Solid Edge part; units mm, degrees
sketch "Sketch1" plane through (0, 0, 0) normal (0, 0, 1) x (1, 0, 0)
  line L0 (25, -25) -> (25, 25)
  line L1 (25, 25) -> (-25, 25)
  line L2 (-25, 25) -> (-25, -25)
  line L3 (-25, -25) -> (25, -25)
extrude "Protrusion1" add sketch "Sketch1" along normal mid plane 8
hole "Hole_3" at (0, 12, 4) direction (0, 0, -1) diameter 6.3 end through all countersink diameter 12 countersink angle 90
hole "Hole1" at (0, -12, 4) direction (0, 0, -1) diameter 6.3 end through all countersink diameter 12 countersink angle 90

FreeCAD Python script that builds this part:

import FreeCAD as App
import Part
import Sketcher
from FreeCAD import Vector


def add_polygon(sketch, points):
    """Adds a closed chain of lines whose ends are joined by coincident constraints."""
    first, n = sketch.GeometryCount, len(points)
    for a, b in zip(points, points[1:] + points[:1]):
        sketch.addGeometry(Part.LineSegment(App.Vector(*a, 0), App.Vector(*b, 0)), False)
    for i in range(n):
        sketch.addConstraint(Sketcher.Constraint("Coincident", first + i, 2, first + (i + 1) % n, 1))

doc = App.newDocument("Part")
params = doc.addObject("Spreadsheet::Sheet", "Params")
for row, (alias, value) in enumerate([
    ("sketch1_width", "50 mm"),
    ("pad1_length", "8 mm"),
    ("sketch2_diameter", "6.3 mm"),
    ("hole_diameter", "6.3 mm"),
    ("hole_csink_diameter", "12 mm"),
    ("sketch3_diameter", "6.3 mm"),
    ("hole2_diameter", "6.3 mm"),
    ("hole2_csink_diameter", "12 mm"),
], start=1):
    params.set(f"A{row}", alias)
    params.set(f"B{row}", "=" + value)
    params.setAlias(f"B{row}", alias)

body = doc.addObject("PartDesign::Body", "Body")

# Sketch on XY plane
sketch1 = body.newObject("Sketcher::SketchObject", "Sketch")
sketch1.AttachmentSupport = (doc.getObject("XY_Plane"), [""])
sketch1.MapMode = "FlatFace"
add_polygon(sketch1, [(-25, -25), (25, -25), (25, 25), (-25, 25)])  # lines 0-3
sketch1.addConstraint(Sketcher.Constraint("Horizontal", 0))
sketch1.addConstraint(Sketcher.Constraint("Vertical", 1))
sketch1.addConstraint(Sketcher.Constraint("Horizontal", 2))
sketch1.addConstraint(Sketcher.Constraint("Vertical", 3))
sketch1.addConstraint(Sketcher.Constraint("Symmetric", 0, 2, 2, 2, -1, 1))
sketch1.addConstraint(Sketcher.Constraint("Equal", 2, 1))
sketch1.addConstraint(Sketcher.Constraint("DistanceX", 0, 1, 0, 2, 50.0))
sketch1.setExpression("Constraints[10]", "Params.sketch1_width")
pad1 = body.newObject("PartDesign::Pad", "Pad")
pad1.Profile = sketch1
pad1.setExpression("Length", "Params.pad1_length")
pad1.Midplane = True

# Sketch on XY plane
sketch2 = body.newObject("Sketcher::SketchObject", "Sketch001")
sketch2.AttachmentSupport = (doc.getObject("XY_Plane"), [""])
sketch2.MapMode = "FlatFace"
sketch2.AttachmentOffset = App.Placement(Vector(0, 0, 4), App.Rotation())
sketch2.addGeometry(Part.Circle(Vector(0, 12, 0), Vector(0, 0, 1), 3.1), False)
sketch2.addConstraint(Sketcher.Constraint("PointOnObject", 0, 3, -2))
sketch2.addConstraint(Sketcher.Constraint("Diameter", 0, 6.3))
sketch2.addConstraint(Sketcher.Constraint("DistanceY", -1, 1, 0, 3, 12.0))
sketch2.setExpression("Constraints[1]", "Params.sketch2_diameter")
doc.recompute()
hole = body.newObject("PartDesign::Hole", "Hole")
hole.Profile = sketch2
hole.ThreadType = "None"
hole.setExpression("Diameter", "Params.hole_diameter")
hole.DepthType = "ThroughAll"
hole.HoleCutType = "Countersink"
hole.setExpression("HoleCutDiameter", "Params.hole_csink_diameter")
hole.HoleCutCountersinkAngle = 90

# Sketch on XY plane
sketch3 = body.newObject("Sketcher::SketchObject", "Sketch002")
sketch3.AttachmentSupport = (doc.getObject("XY_Plane"), [""])
sketch3.MapMode = "FlatFace"
sketch3.AttachmentOffset = App.Placement(Vector(0, 0, 4), App.Rotation())
sketch3.addGeometry(Part.Circle(Vector(0, -12, 0), Vector(0, 0, 1), 3.1), False)
sketch3.addConstraint(Sketcher.Constraint("PointOnObject", 0, 3, -2))
sketch3.addConstraint(Sketcher.Constraint("Diameter", 0, 6.3))
sketch3.addConstraint(Sketcher.Constraint("DistanceY", 0, 3, -1, 1, 12.0))
sketch3.setExpression("Constraints[1]", "Params.sketch3_diameter")
doc.recompute()
hole2 = body.newObject("PartDesign::Hole", "Hole001")
hole2.Profile = sketch3
hole2.ThreadType = "None"
hole2.setExpression("Diameter", "Params.hole2_diameter")
hole2.DepthType = "ThroughAll"
hole2.HoleCutType = "Countersink"
hole2.setExpression("HoleCutDiameter", "Params.hole2_csink_diameter")
hole2.HoleCutCountersinkAngle = 90

doc.recompute()
